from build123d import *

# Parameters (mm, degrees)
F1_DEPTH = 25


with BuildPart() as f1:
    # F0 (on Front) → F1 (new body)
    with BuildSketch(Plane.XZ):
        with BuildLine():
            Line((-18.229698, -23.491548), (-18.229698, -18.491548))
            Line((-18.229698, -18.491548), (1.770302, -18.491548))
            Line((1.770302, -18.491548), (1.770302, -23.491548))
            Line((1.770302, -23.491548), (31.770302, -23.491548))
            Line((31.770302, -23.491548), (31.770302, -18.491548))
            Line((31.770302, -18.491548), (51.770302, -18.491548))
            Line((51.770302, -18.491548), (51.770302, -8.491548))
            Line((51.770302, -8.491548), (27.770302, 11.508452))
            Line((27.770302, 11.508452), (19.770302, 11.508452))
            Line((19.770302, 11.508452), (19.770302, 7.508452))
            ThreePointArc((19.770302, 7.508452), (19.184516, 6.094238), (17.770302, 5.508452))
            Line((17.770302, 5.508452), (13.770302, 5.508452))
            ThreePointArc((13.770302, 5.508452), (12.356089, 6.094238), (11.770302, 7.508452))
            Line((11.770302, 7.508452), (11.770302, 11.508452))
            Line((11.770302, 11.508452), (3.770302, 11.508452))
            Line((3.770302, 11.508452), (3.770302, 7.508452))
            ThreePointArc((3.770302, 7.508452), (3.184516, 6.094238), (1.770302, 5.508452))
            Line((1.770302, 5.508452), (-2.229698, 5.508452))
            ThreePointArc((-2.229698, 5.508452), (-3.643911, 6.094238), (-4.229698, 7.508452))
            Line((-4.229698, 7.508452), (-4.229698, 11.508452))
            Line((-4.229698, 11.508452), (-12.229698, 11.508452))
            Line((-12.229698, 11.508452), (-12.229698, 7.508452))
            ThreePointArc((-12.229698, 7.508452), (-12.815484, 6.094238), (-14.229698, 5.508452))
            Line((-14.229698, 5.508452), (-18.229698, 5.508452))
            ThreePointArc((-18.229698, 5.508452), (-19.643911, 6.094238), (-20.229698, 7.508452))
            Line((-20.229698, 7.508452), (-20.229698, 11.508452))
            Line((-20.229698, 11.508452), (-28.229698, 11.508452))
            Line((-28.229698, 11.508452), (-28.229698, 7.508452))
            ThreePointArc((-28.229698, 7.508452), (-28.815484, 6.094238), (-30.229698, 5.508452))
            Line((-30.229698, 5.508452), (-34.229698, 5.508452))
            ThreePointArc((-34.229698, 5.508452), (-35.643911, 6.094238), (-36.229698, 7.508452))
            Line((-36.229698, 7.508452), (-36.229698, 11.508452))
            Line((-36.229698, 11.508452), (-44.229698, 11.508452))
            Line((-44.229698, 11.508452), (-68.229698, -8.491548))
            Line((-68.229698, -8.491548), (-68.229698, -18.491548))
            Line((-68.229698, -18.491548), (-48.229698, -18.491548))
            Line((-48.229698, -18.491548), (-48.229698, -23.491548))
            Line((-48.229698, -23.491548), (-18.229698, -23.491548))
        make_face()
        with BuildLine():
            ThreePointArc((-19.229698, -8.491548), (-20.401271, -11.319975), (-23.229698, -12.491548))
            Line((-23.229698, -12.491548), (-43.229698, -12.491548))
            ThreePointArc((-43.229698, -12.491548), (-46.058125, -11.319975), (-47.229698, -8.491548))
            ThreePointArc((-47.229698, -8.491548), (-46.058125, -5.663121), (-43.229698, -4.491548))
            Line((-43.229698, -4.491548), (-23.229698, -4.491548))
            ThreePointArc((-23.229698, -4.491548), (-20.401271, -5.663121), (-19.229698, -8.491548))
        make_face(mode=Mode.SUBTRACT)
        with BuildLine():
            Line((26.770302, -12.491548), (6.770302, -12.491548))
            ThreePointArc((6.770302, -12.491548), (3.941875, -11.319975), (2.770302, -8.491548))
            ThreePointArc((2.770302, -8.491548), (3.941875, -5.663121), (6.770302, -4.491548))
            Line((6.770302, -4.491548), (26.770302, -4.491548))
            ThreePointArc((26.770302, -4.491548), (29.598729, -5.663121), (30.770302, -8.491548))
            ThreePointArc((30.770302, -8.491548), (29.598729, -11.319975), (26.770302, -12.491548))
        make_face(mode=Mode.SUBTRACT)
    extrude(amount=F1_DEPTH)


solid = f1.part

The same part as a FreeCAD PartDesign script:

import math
import FreeCAD as App
import Part
import Sketcher
from FreeCAD import Vector

doc = App.newDocument("Part")
body = doc.addObject("PartDesign::Body", "Body")

# Sketch on XZ plane
sketch1 = body.newObject("Sketcher::SketchObject", "Sketch")
sketch1.AttachmentSupport = (doc.getObject("XZ_Plane"), [""])
sketch1.MapMode = "FlatFace"
sketch1.addGeometry([
    Part.LineSegment(Vector(-18.2, -23.5, 0), Vector(-18.2, -18.5, 0)),  # 0
    Part.LineSegment(Vector(-18.2, -18.5, 0), Vector(1.8, -18.5, 0)),  # 1
    Part.LineSegment(Vector(1.8, -18.5, 0), Vector(1.8, -23.5, 0)),  # 2
    Part.LineSegment(Vector(1.8, -23.5, 0), Vector(31.8, -23.5, 0)),  # 3
    Part.LineSegment(Vector(31.8, -23.5, 0), Vector(31.8, -18.5, 0)),  # 4
    Part.LineSegment(Vector(31.8, -18.5, 0), Vector(51.8, -18.5, 0)),  # 5
    Part.LineSegment(Vector(51.8, -18.5, 0), Vector(51.8, -8.5, 0)),  # 6
    Part.LineSegment(Vector(51.8, -8.5, 0), Vector(27.8, 11.5, 0)),  # 7
    Part.LineSegment(Vector(27.8, 11.5, 0), Vector(19.8, 11.5, 0)),  # 8
    Part.LineSegment(Vector(19.8, 11.5, 0), Vector(19.8, 7.5, 0)),  # 9
    Part.ArcOfCircle(Part.Circle(Vector(17.8, 7.5, 0), Vector(0, 0, 1), 2), math.radians(-90), math.radians(0)),  # 10
    Part.LineSegment(Vector(17.8, 5.5, 0), Vector(13.8, 5.5, 0)),  # 11
    Part.ArcOfCircle(Part.Circle(Vector(13.8, 7.5, 0), Vector(0, 0, 1), 2), math.radians(-180), math.radians(-90)),  # 12
    Part.LineSegment(Vector(11.8, 7.5, 0), Vector(11.8, 11.5, 0)),  # 13
    Part.LineSegment(Vector(11.8, 11.5, 0), Vector(3.8, 11.5, 0)),  # 14
    Part.LineSegment(Vector(3.8, 11.5, 0), Vector(3.8, 7.5, 0)),  # 15
    Part.ArcOfCircle(Part.Circle(Vector(1.8, 7.5, 0), Vector(0, 0, 1), 2), math.radians(-90), math.radians(0)),  # 16
    Part.LineSegment(Vector(1.8, 5.5, 0), Vector(-2.2, 5.5, 0)),  # 17
    Part.ArcOfCircle(Part.Circle(Vector(-2.2, 7.5, 0), Vector(0, 0, 1), 2), math.radians(-180), math.radians(-90)),  # 18
    Part.LineSegment(Vector(-4.2, 7.5, 0), Vector(-4.2, 11.5, 0)),  # 19
    Part.LineSegment(Vector(-4.2, 11.5, 0), Vector(-12.2, 11.5, 0)),  # 20
    Part.LineSegment(Vector(-12.2, 11.5, 0), Vector(-12.2, 7.5, 0)),  # 21
    Part.ArcOfCircle(Part.Circle(Vector(-14.2, 7.5, 0), Vector(0, 0, 1), 2), math.radians(-90), math.radians(0)),  # 22
    Part.LineSegment(Vector(-14.2, 5.5, 0), Vector(-18.2, 5.5, 0)),  # 23
    Part.ArcOfCircle(Part.Circle(Vector(-18.2, 7.5, 0), Vector(0, 0, 1), 2), math.radians(-180), math.radians(-90)),  # 24
    Part.LineSegment(Vector(-20.2, 7.5, 0), Vector(-20.2, 11.5, 0)),  # 25
    Part.LineSegment(Vector(-20.2, 11.5, 0), Vector(-28.2, 11.5, 0)),  # 26
    Part.LineSegment(Vector(-28.2, 11.5, 0), Vector(-28.2, 7.5, 0)),  # 27
    Part.ArcOfCircle(Part.Circle(Vector(-30.2, 7.5, 0), Vector(0, 0, 1), 2), math.radians(-90), math.radians(0)),  # 28
    Part.LineSegment(Vector(-30.2, 5.5, 0), Vector(-34.2, 5.5, 0)),  # 29
    Part.ArcOfCircle(Part.Circle(Vector(-34.2, 7.5, 0), Vector(0, 0, 1), 2), math.radians(-180), math.radians(-90)),  # 30
    Part.LineSegment(Vector(-36.2, 7.5, 0), Vector(-36.2, 11.5, 0)),  # 31
    Part.LineSegment(Vector(-36.2, 11.5, 0), Vector(-44.2, 11.5, 0)),  # 32
    Part.LineSegment(Vector(-44.2, 11.5, 0), Vector(-68.2, -8.5, 0)),  # 33
    Part.LineSegment(Vector(-68.2, -8.5, 0), Vector(-68.2, -18.5, 0)),  # 34
    Part.LineSegment(Vector(-68.2, -18.5, 0), Vector(-48.2, -18.5, 0)),  # 35
    Part.LineSegment(Vector(-48.2, -18.5, 0), Vector(-48.2, -23.5, 0)),  # 36
    Part.LineSegment(Vector(-48.2, -23.5, 0), Vector(-18.2, -23.5, 0)),  # 37
    Part.ArcOfCircle(Part.Circle(Vector(-23.2, -8.5, 0), Vector(0, 0, 1), 4), math.radians(0), math.radians(90)),  # 38
    Part.ArcOfCircle(Part.Circle(Vector(-23.2, -8.5, 0), Vector(0, 0, 1), 4), math.radians(-90), math.radians(0)),  # 39
    Part.LineSegment(Vector(-23.2, -12.5, 0), Vector(-43.2, -12.5, 0)),  # 40
    Part.ArcOfCircle(Part.Circle(Vector(-43.2, -8.5, 0), Vector(0, 0, 1), 4), math.radians(-180), math.radians(-90)),  # 41
    Part.ArcOfCircle(Part.Circle(Vector(-43.2, -8.5, 0), Vector(0, 0, 1), 4), math.radians(90), math.radians(180)),  # 42
    Part.LineSegment(Vector(-43.2, -4.5, 0), Vector(-23.2, -4.5, 0)),  # 43
    Part.ArcOfCircle(Part.Circle(Vector(26.8, -8.5, 0), Vector(0, 0, 1), 4), math.radians(-90), math.radians(0)),  # 44
    Part.LineSegment(Vector(26.8, -12.5, 0), Vector(6.8, -12.5, 0)),  # 45
    Part.ArcOfCircle(Part.Circle(Vector(6.8, -8.5, 0), Vector(0, 0, 1), 4), math.radians(-180), math.radians(-90)),  # 46
    Part.ArcOfCircle(Part.Circle(Vector(6.8, -8.5, 0), Vector(0, 0, 1), 4), math.radians(90), math.radians(180)),  # 47
    Part.LineSegment(Vector(6.8, -4.5, 0), Vector(26.8, -4.5, 0)),  # 48
    Part.ArcOfCircle(Part.Circle(Vector(26.8, -8.5, 0), Vector(0, 0, 1), 4), math.radians(0), math.radians(90)),  # 49
], False)
sketch1.addConstraint([
    Sketcher.Constraint("Coincident", 0, 2, 1, 1),
    Sketcher.Constraint("Coincident", 1, 2, 2, 1),
    Sketcher.Constraint("Coincident", 2, 2, 3, 1),
    Sketcher.Constraint("Coincident", 3, 2, 4, 1),
    Sketcher.Constraint("Coincident", 4, 2, 5, 1),
    Sketcher.Constraint("Coincident", 5, 2, 6, 1),
    Sketcher.Constraint("Coincident", 6, 2, 7, 1),
    Sketcher.Constraint("Coincident", 7, 2, 8, 1),
    Sketcher.Constraint("Coincident", 8, 2, 9, 1),
    Sketcher.Constraint("Tangent", 9, 2, 10, 2),
    Sketcher.Constraint("Tangent", 10, 1, 11, 1),
    Sketcher.Constraint("Tangent", 11, 2, 12, 2),
    Sketcher.Constraint("Tangent", 12, 1, 13, 1),
    Sketcher.Constraint("Coincident", 13, 2, 14, 1),
    Sketcher.Constraint("Coincident", 14, 2, 15, 1),
    Sketcher.Constraint("Tangent", 15, 2, 16, 2),
    Sketcher.Constraint("Tangent", 16, 1, 17, 1),
    Sketcher.Constraint("Tangent", 17, 2, 18, 2),
    Sketcher.Constraint("Tangent", 18, 1, 19, 1),
    Sketcher.Constraint("Coincident", 19, 2, 20, 1),
    Sketcher.Constraint("Coincident", 20, 2, 21, 1),
    Sketcher.Constraint("Tangent", 21, 2, 22, 2),
    Sketcher.Constraint("Tangent", 22, 1, 23, 1),
    Sketcher.Constraint("Tangent", 23, 2, 24, 2),
    Sketcher.Constraint("Tangent", 24, 1, 25, 1),
    Sketcher.Constraint("Coincident", 25, 2, 26, 1),
    Sketcher.Constraint("Coincident", 26, 2, 27, 1),
    Sketcher.Constraint("Tangent", 27, 2, 28, 2),
    Sketcher.Constraint("Tangent", 28, 1, 29, 1),
    Sketcher.Constraint("Tangent", 29, 2, 30, 2),
    Sketcher.Constraint("Tangent", 30, 1, 31, 1),
    Sketcher.Constraint("Coincident", 31, 2, 32, 1),
    Sketcher.Constraint("Coincident", 32, 2, 33, 1),
    Sketcher.Constraint("Coincident", 33, 2, 34, 1),
    Sketcher.Constraint("Coincident", 34, 2, 35, 1),
    Sketcher.Constraint("Coincident", 35, 2, 36, 1),
    Sketcher.Constraint("Coincident", 36, 2, 37, 1),
    Sketcher.Constraint("Coincident", 37, 2, 0, 1),
    Sketcher.Constraint("Tangent", 38, 1, 39, 2),
    Sketcher.Constraint("Tangent", 39, 1, 40, 1),
    Sketcher.Constraint("Tangent", 40, 2, 41, 2),
    Sketcher.Constraint("Tangent", 41, 1, 42, 2),
    Sketcher.Constraint("Tangent", 42, 1, 43, 1),
    Sketcher.Constraint("Tangent", 43, 2, 38, 2),
    Sketcher.Constraint("Tangent", 44, 1, 45, 1),
    Sketcher.Constraint("Tangent", 45, 2, 46, 2),
    Sketcher.Constraint("Tangent", 46, 1, 47, 2),
    Sketcher.Constraint("Tangent", 47, 1, 48, 1),
    Sketcher.Constraint("Tangent", 48, 2, 49, 2),
    Sketcher.Constraint("Tangent", 49, 1, 44, 2),
    Sketcher.Constraint("Vertical", 0),
    Sketcher.Constraint("Horizontal", 1),
    Sketcher.Constraint("Vertical", 2),
    Sketcher.Constraint("Horizontal", 3),
    Sketcher.Constraint("Vertical", 4),
    Sketcher.Constraint("Horizontal", 5),
    Sketcher.Constraint("Vertical", 6),
    Sketcher.Constraint("Horizontal", 8),
    Sketcher.Constraint("Vertical", 9),
    Sketcher.Constraint("Horizontal", 11),
    Sketcher.Constraint("Vertical", 13),
    Sketcher.Constraint("Horizontal", 14),
    Sketcher.Constraint("Vertical", 15),
    Sketcher.Constraint("Horizontal", 17),
    Sketcher.Constraint("Vertical", 19),
    Sketcher.Constraint("Horizontal", 20),
    Sketcher.Constraint("Vertical", 21),
    Sketcher.Constraint("Horizontal", 23),
    Sketcher.Constraint("Vertical", 25),
    Sketcher.Constraint("Horizontal", 26),
    Sketcher.Constraint("Vertical", 27),
    Sketcher.Constraint("Horizontal", 29),
    Sketcher.Constraint("Vertical", 31),
    Sketcher.Constraint("Horizontal", 32),
    Sketcher.Constraint("Vertical", 34),
    Sketcher.Constraint("Horizontal", 35),
    Sketcher.Constraint("Vertical", 36),
    Sketcher.Constraint("Horizontal", 37),
    Sketcher.Constraint("Horizontal", 40),
    Sketcher.Constraint("Horizontal", 43),
    Sketcher.Constraint("Horizontal", 45),
    Sketcher.Constraint("Horizontal", 48),
    Sketcher.Constraint("Equal", 10, 12),
    Sketcher.Constraint("Equal", 12, 16),
    Sketcher.Constraint("Equal", 16, 18),
    Sketcher.Constraint("Equal", 18, 22),
    Sketcher.Constraint("Equal", 22, 24),
    Sketcher.Constraint("Equal", 24, 28),
    Sketcher.Constraint("Equal", 28, 30),
    Sketcher.Constraint("Equal", 38, 39),
    Sketcher.Constraint("Equal", 39, 41),
    Sketcher.Constraint("Equal", 42, 44),
    Sketcher.Constraint("Equal", 44, 46),
    Sketcher.Constraint("Equal", 46, 47),
    Sketcher.Constraint("Horizontal", 12, 3, 16, 3),
    Sketcher.Constraint("Horizontal", 18, 3, 22, 3),
    Sketcher.Constraint("Horizontal", 24, 3, 28, 3),
    Sketcher.Constraint("Horizontal", 42, 3, 44, 3),
    Sketcher.Constraint("Horizontal", 1, 2, 4, 2),
    Sketcher.Constraint("Horizontal", 49, 3, 6, 2),
    Sketcher.Constraint("Horizontal", 8, 2, 13, 2),
    Sketcher.Constraint("Horizontal", 14, 2, 19, 2),
    Sketcher.Constraint("Horizontal", 20, 2, 25, 2),
    Sketcher.Constraint("Horizontal", 26, 2, 31, 2),
    Sketcher.Constraint("Horizontal", 6, 2, 33, 2),
    Sketcher.Constraint("Horizontal", 5, 2, 34, 2),
    Sketcher.Constraint("Horizontal", 3, 2, 36, 2),
    Sketcher.Constraint("Horizontal", 33, 2, 38, 1),
    Sketcher.Constraint("Horizontal", 38, 1, 41, 1),
    Sketcher.Constraint("Horizontal", 41, 1, 46, 1),
    Sketcher.Constraint("Horizontal", 46, 1, 49, 1),
    Sketcher.Constraint("Vertical", 24, 3, 0, 2),
    Sketcher.Constraint("Vertical", 16, 3, 1, 2),
    Sketcher.Constraint("Equal", 1, 5),
    Sketcher.Constraint("Equal", 8, 14),
    Sketcher.Constraint("Equal", 11, 17),
    Sketcher.Constraint("Equal", 14, 20),
    Sketcher.Constraint("Equal", 17, 23),
    Sketcher.Constraint("Equal", 20, 26),
    Sketcher.Constraint("Equal", 23, 29),
    Sketcher.Constraint("Equal", 26, 32),
    Sketcher.Constraint("Equal", 5, 35),
    Sketcher.Constraint("Equal", 3, 37),
    Sketcher.Constraint("Equal", 35, 40),
    Sketcher.Constraint("Equal", 43, 45),
    Sketcher.Constraint("Equal", 29, 9),
    Sketcher.Constraint("Radius", 10, 1.999999),
    Sketcher.Constraint("Radius", 38, 4.0),
    Sketcher.Constraint("DistanceX", 1, 1, 1, 2, 20.0),
    Sketcher.Constraint("DistanceX", 3, 1, 3, 2, 30.0),
    Sketcher.Constraint("DistanceX", 8, 2, 8, 1, 8.0),
    Sketcher.Constraint("DistanceY", 0, 1, 0, 2, 5.0),
    Sketcher.Constraint("DistanceY", 6, 1, 6, 2, 10.0),
    Sketcher.Constraint("Distance", 7, 31.240999),
    Sketcher.Constraint("DistanceX", 38, 3, -1, 1, 23.229698),
    Sketcher.Constraint("DistanceX", -1, 1, 44, 3, 26.770302),
    Sketcher.Constraint("DistanceX", -1, 1, 11, 2, 13.770302),
    Sketcher.Constraint("DistanceY", -1, 1, 10, 3, 7.508451),
])
pad1 = body.newObject("PartDesign::Pad", "Pad")
pad1.Profile = sketch1
pad1.Length = 25

doc.recompute()
